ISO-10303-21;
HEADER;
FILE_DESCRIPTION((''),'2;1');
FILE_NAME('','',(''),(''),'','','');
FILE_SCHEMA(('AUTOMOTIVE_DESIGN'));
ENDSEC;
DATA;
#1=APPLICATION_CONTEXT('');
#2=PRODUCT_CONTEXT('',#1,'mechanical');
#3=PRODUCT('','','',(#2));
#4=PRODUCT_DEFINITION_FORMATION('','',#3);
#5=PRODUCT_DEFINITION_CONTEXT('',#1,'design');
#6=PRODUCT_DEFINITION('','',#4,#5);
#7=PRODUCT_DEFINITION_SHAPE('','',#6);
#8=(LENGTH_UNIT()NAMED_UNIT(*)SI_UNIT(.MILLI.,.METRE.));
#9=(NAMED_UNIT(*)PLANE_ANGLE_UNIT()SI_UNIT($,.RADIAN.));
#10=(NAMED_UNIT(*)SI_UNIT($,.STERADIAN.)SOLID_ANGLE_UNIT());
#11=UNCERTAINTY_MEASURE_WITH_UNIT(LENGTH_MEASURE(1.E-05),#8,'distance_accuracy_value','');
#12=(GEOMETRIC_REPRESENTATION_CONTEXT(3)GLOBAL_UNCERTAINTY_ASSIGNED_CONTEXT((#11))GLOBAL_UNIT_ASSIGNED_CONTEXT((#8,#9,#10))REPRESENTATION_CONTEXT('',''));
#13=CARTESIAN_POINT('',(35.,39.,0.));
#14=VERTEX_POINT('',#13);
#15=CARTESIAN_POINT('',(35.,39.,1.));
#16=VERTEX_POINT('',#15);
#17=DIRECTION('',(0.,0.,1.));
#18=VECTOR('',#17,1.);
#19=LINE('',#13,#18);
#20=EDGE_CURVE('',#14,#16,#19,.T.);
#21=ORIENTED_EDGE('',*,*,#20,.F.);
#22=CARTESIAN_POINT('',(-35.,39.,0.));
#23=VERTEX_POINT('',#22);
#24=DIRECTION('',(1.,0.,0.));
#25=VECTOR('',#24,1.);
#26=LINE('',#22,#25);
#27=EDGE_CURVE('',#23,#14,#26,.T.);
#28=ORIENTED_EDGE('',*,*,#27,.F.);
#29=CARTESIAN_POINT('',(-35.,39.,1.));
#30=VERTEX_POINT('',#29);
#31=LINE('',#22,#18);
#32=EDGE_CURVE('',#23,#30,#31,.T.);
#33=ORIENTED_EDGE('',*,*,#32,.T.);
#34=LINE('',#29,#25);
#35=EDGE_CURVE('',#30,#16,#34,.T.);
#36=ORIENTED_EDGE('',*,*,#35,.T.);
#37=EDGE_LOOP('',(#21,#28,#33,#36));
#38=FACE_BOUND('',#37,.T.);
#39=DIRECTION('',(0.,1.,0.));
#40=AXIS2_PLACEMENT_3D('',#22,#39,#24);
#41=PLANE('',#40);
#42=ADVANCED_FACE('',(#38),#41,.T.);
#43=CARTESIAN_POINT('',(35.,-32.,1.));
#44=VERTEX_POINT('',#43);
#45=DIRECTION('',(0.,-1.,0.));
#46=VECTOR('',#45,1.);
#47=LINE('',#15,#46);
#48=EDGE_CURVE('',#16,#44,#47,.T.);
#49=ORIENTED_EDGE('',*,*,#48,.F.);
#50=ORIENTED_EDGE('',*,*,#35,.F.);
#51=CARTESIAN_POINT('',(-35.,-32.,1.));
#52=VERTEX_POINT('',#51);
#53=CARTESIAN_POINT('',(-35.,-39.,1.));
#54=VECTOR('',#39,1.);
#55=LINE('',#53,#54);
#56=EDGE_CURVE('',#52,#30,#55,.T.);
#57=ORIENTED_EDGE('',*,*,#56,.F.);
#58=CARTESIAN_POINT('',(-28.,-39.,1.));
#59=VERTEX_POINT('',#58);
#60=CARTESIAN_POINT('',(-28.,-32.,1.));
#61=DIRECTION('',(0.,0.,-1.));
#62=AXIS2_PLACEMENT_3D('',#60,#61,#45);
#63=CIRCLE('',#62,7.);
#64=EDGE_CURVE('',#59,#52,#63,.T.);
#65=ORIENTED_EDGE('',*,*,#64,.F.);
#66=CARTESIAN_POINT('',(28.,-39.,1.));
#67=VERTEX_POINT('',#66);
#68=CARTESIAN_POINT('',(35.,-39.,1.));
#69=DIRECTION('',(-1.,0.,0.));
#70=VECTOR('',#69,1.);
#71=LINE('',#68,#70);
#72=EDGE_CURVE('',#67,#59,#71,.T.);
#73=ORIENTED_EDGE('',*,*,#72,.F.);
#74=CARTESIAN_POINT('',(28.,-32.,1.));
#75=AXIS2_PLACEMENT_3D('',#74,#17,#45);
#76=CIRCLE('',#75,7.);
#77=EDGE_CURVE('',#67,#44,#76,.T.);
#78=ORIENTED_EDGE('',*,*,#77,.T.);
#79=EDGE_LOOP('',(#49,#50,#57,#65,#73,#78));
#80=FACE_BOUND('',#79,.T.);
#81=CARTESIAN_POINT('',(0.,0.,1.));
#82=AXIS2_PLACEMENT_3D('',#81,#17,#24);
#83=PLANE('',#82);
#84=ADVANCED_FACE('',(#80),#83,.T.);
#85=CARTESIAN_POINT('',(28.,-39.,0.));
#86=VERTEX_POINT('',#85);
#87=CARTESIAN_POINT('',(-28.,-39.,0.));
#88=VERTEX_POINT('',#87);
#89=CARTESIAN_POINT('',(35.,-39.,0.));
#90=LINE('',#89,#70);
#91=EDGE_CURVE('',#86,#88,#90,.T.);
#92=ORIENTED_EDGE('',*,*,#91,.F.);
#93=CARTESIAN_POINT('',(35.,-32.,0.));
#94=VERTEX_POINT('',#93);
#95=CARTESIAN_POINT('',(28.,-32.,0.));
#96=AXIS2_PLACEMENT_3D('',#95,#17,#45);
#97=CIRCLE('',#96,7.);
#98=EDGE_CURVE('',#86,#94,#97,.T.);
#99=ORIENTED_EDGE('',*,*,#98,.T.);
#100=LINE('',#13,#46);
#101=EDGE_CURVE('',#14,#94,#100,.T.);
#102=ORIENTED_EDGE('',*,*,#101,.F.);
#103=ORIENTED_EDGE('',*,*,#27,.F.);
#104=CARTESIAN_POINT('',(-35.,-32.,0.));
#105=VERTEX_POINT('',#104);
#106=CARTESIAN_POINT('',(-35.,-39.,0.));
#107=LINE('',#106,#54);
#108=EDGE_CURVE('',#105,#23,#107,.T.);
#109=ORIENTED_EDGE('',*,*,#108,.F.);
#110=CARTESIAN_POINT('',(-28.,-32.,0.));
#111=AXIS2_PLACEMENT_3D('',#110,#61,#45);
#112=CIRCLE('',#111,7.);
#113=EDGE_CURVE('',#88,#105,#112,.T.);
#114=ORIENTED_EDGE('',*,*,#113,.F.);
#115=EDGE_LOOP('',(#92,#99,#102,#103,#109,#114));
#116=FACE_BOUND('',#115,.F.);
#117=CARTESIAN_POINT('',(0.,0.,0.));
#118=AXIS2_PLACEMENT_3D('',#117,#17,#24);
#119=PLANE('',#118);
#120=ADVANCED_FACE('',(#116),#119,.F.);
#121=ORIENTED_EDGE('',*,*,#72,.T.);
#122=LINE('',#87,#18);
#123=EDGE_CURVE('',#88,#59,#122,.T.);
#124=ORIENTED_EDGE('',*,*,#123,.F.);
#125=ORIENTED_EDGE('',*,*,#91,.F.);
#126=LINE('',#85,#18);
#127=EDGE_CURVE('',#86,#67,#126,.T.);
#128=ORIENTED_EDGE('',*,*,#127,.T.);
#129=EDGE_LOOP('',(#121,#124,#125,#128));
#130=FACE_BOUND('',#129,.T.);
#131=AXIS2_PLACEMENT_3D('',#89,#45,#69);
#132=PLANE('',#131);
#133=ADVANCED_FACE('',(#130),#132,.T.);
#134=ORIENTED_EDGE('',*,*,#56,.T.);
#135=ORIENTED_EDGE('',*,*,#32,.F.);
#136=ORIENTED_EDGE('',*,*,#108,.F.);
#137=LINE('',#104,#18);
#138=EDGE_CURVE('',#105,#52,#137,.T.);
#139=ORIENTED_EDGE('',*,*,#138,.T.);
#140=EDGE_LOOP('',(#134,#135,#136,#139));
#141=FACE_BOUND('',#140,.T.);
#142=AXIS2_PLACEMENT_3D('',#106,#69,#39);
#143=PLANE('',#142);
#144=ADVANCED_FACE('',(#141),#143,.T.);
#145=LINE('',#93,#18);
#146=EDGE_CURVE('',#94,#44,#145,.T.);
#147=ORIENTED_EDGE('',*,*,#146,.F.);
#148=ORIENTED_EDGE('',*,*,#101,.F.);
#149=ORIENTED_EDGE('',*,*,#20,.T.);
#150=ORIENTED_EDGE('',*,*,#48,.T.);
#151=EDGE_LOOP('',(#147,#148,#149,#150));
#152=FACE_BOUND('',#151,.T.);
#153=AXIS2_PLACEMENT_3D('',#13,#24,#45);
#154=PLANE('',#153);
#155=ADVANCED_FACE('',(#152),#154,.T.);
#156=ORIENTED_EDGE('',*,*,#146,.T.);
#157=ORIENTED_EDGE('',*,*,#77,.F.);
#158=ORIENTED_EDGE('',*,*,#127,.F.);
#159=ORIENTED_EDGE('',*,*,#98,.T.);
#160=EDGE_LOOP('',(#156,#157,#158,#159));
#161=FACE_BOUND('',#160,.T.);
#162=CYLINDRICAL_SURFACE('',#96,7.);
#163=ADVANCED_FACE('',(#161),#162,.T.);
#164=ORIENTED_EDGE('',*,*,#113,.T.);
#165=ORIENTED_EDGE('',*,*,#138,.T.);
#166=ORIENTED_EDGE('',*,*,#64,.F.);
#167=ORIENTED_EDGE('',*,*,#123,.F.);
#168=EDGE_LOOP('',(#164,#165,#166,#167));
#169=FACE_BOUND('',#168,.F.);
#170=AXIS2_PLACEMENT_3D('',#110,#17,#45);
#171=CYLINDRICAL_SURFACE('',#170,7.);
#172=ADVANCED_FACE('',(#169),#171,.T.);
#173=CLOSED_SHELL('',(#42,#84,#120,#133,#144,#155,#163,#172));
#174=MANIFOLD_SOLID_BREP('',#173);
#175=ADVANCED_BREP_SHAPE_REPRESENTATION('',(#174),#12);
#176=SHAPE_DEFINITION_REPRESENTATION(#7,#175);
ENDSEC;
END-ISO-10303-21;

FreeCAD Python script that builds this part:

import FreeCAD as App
import Part
import Sketcher
Q = App.Units.Quantity


def edges_at(feature, points):
    """Names of the edges that pass closest to the given points."""
    edges = feature.Shape.Edges
    near = lambda p: min(range(len(edges)), key=lambda i: edges[i].distToShape(Part.Vertex(*p))[0])
    return sorted({f"Edge{near(p) + 1}" for p in points})


def add_polygon(sketch, points):
    """Adds a closed chain of lines whose ends are joined by coincident constraints."""
    first, n = sketch.GeometryCount, len(points)
    for a, b in zip(points, points[1:] + points[:1]):
        sketch.addGeometry(Part.LineSegment(App.Vector(*a, 0), App.Vector(*b, 0)), False)
    for i in range(n):
        sketch.addConstraint(Sketcher.Constraint("Coincident", first + i, 2, first + (i + 1) % n, 1))

doc = App.newDocument("Part")
body = doc.addObject("PartDesign::Body", "Body")

sketch1 = doc.addObject("Sketcher::SketchObject", "Sketch")
body.addObject(sketch1)
sketch1.AttachmentSupport = (doc.XY_Plane, [""])
sketch1.MapMode = "FlatFace"
add_polygon(sketch1, [(-35, -39), (35, -39), (35, 39), (-35, 39)])
sketch1.addConstraint([
    Sketcher.Constraint("Horizontal", 0),
    Sketcher.Constraint("Vertical", 1),
    Sketcher.Constraint("Horizontal", 2),
    Sketcher.Constraint("Vertical", 3),
    Sketcher.Constraint("Symmetric", 0, 2, 2, 2, -1, 1),
    Sketcher.Constraint("DistanceX", 0, 1, 0, 2, Q("70 mm")),
    Sketcher.Constraint("DistanceY", 1, 1, 1, 2, Q("78 mm")),
])
pad1 = doc.addObject("PartDesign::Pad", "Pad")
body.addObject(pad1)
pad1.Profile = sketch1
pad1.Length = 1
doc.recompute()

fillet = doc.addObject("PartDesign::Fillet", "Fillet")
body.addObject(fillet)
fillet.Base = (pad1, edges_at(pad1, [(-35, -39, 0.5), (35, -39, 0.5)]))
fillet.Radius = 7

doc.recompute()
